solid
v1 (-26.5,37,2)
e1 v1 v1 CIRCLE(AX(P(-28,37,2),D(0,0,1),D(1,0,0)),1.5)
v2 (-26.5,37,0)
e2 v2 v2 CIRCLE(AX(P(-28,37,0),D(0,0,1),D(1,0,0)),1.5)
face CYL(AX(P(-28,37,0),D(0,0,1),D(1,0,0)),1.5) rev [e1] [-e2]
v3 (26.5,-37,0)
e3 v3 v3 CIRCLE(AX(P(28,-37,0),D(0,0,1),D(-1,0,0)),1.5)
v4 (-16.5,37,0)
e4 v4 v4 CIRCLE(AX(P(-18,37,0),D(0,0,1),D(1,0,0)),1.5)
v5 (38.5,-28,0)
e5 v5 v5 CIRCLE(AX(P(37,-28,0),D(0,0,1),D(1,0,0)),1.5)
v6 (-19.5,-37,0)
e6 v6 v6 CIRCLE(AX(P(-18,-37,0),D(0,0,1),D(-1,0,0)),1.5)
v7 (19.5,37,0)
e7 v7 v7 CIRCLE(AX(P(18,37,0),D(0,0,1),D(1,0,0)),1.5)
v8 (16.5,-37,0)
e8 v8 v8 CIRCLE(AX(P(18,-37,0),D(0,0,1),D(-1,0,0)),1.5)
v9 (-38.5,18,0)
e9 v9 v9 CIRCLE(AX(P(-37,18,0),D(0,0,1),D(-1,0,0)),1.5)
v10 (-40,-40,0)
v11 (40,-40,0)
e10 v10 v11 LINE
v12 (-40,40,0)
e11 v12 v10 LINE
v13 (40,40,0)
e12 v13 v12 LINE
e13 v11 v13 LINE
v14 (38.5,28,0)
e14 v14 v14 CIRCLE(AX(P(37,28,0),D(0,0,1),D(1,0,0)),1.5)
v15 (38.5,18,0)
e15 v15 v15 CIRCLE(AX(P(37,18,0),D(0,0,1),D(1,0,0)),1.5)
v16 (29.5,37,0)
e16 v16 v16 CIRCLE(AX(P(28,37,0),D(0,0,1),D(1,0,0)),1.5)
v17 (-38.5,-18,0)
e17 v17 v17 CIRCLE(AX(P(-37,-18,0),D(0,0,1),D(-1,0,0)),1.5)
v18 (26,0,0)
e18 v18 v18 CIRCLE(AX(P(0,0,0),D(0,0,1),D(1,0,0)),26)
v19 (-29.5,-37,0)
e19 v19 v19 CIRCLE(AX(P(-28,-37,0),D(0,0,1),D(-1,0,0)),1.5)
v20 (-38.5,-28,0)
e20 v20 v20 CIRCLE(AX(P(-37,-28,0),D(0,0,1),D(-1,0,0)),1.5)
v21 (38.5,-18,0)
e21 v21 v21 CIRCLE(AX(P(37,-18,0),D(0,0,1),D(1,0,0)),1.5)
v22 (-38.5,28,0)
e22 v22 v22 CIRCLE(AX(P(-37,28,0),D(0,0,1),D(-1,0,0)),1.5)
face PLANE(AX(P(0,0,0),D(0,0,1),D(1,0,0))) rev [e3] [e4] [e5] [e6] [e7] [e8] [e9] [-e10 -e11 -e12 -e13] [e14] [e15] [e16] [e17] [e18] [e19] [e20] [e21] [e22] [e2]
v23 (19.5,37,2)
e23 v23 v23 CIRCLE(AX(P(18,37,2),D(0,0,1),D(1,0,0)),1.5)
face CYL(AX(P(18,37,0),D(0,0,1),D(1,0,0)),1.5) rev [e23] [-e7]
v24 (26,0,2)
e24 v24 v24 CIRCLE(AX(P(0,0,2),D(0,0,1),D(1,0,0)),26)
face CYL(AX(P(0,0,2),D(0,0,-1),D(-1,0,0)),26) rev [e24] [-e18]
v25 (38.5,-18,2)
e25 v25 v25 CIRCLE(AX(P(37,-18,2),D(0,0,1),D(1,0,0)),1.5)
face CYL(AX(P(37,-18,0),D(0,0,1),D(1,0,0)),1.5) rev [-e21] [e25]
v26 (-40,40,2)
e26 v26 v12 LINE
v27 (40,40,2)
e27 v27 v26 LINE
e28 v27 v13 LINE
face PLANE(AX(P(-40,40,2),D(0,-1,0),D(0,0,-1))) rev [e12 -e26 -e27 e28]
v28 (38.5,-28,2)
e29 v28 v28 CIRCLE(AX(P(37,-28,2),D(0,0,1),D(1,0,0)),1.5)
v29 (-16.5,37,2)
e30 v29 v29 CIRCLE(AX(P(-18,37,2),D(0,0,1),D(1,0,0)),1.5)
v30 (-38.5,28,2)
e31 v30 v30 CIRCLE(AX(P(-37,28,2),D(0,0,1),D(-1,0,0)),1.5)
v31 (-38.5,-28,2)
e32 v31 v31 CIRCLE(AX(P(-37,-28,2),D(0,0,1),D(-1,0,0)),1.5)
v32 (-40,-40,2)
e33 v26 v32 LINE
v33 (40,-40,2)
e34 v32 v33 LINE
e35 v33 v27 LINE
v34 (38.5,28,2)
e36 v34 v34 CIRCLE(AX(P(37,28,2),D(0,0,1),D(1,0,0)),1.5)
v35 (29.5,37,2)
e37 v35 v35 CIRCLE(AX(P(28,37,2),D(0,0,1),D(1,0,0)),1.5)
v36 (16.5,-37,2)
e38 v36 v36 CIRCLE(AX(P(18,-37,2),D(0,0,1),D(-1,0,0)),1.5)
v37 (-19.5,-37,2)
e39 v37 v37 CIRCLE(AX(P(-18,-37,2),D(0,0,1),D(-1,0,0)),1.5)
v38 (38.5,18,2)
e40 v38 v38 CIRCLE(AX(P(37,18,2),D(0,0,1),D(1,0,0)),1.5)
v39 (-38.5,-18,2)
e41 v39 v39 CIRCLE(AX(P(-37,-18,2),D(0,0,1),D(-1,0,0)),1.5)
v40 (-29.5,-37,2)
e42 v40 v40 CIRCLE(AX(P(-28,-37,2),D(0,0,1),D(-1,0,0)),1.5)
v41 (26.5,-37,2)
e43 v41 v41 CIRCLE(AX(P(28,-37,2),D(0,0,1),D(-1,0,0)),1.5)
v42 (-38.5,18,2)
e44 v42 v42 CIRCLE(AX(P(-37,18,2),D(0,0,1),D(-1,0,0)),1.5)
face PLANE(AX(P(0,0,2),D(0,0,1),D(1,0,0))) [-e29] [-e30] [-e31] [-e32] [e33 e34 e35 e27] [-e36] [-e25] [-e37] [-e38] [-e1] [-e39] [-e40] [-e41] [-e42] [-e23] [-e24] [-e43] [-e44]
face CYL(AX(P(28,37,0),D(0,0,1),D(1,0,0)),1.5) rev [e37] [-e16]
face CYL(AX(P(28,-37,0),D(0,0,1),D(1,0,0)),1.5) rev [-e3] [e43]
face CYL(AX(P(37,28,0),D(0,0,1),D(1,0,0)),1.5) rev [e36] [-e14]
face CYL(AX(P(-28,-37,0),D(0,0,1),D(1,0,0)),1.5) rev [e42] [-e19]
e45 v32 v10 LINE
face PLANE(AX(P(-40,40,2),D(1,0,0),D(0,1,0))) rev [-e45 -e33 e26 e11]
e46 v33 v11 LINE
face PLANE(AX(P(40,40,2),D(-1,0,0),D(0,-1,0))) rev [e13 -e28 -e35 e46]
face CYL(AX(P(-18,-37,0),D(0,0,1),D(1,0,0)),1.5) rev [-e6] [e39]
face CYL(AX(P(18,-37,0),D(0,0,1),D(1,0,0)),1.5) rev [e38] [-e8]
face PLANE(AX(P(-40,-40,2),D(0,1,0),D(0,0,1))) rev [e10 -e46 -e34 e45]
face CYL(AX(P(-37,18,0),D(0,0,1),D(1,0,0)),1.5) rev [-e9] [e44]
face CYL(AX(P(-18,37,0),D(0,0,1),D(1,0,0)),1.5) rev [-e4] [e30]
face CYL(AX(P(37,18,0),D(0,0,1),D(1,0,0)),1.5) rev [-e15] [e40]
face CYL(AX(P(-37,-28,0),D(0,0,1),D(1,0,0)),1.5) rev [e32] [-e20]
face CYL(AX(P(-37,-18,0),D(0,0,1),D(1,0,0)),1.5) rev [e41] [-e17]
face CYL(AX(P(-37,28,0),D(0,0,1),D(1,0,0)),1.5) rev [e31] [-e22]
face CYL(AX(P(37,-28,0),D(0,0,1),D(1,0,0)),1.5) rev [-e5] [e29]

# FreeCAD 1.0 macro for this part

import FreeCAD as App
import Part
import Sketcher
from FreeCAD import Vector

doc = App.newDocument("Part")
params = doc.addObject("Spreadsheet::Sheet", "Params")
for row, (alias, value) in enumerate([
    ("sketch1_diameter", "52 mm"),
    ("sketch1_width", "80 mm"),
    ("pad1_length", "2 mm"),
    ("sketch2_diameter", "3 mm"),
], start=1):
    params.set(f"A{row}", alias)
    params.set(f"B{row}", "=" + value)
    params.setAlias(f"B{row}", alias)

body = doc.addObject("PartDesign::Body", "Body")

# Sketch on XY plane
sketch1 = body.newObject("Sketcher::SketchObject", "Sketch")
sketch1.AttachmentSupport = (doc.getObject("XY_Plane"), [""])
sketch1.MapMode = "FlatFace"
sketch1.addGeometry([
    Part.LineSegment(Vector(-40, 40, 0), Vector(-40, -40, 0)),  # 0
    Part.LineSegment(Vector(-40, -40, 0), Vector(40, -40, 0)),  # 1
    Part.LineSegment(Vector(40, -40, 0), Vector(40, 40, 0)),  # 2
    Part.LineSegment(Vector(40, 40, 0), Vector(-40, 40, 0)),  # 3
    Part.Circle(Vector(0, 0, 0), Vector(0, 0, 1), 26),  # 4
], False)
sketch1.addConstraint([
    Sketcher.Constraint("Coincident", 0, 2, 1, 1),
    Sketcher.Constraint("Coincident", 1, 2, 2, 1),
    Sketcher.Constraint("Coincident", 2, 2, 3, 1),
    Sketcher.Constraint("Coincident", 3, 2, 0, 1),
    Sketcher.Constraint("Vertical", 0),
    Sketcher.Constraint("Horizontal", 1),
    Sketcher.Constraint("Vertical", 2),
    Sketcher.Constraint("Horizontal", 3),
    Sketcher.Constraint("Coincident", 4, 3, -1, 1),
    Sketcher.Constraint("Symmetric", 0, 2, 2, 2, -1, 1),
    Sketcher.Constraint("Equal", 3, 0),
    Sketcher.Constraint("Diameter", 4, 52.0),
    Sketcher.Constraint("DistanceX", 1, 1, 1, 2, 80.0),
])
sketch1.setExpression("Constraints[11]", "Params.sketch1_diameter")
sketch1.setExpression("Constraints[12]", "Params.sketch1_width")
pad1 = body.newObject("PartDesign::Pad", "Pad")
pad1.Profile = sketch1
pad1.setExpression("Length", "Params.pad1_length")

# Sketch on XY plane
sketch2 = body.newObject("Sketcher::SketchObject", "Sketch001")
sketch2.AttachmentSupport = (doc.getObject("XY_Plane"), [""])
sketch2.MapMode = "FlatFace"
sketch2.AttachmentOffset = App.Placement(Vector(0, 0, 2), App.Rotation())
sketch2.addGeometry([
    Part.Circle(Vector(37, 28, 0), Vector(0, 0, 1), 1.5),  # 0
    Part.Circle(Vector(37, 18, 0), Vector(0, 0, 1), 1.5),  # 1
    Part.Circle(Vector(37, -18, 0), Vector(0, 0, 1), 1.5),  # 2
    Part.Circle(Vector(37, -28, 0), Vector(0, 0, 1), 1.5),  # 3
    Part.Circle(Vector(-37, -28, 0), Vector(0, 0, 1), 1.5),  # 4
    Part.Circle(Vector(-37, -18, 0), Vector(0, 0, 1), 1.5),  # 5
    Part.Circle(Vector(-37, 18, 0), Vector(0, 0, 1), 1.5),  # 6
    Part.Circle(Vector(-37, 28, 0), Vector(0, 0, 1), 1.5),  # 7
    Part.Circle(Vector(-28, 37, 0), Vector(0, 0, 1), 1.5),  # 8
    Part.Circle(Vector(-18, 37, 0), Vector(0, 0, 1), 1.5),  # 9
    Part.Circle(Vector(18, 37, 0), Vector(0, 0, 1), 1.5),  # 10
    Part.Circle(Vector(28, 37, 0), Vector(0, 0, 1), 1.5),  # 11
    Part.Circle(Vector(28, -37, 0), Vector(0, 0, 1), 1.5),  # 12
    Part.Circle(Vector(18, -37, 0), Vector(0, 0, 1), 1.5),  # 13
    Part.Circle(Vector(-18, -37, 0), Vector(0, 0, 1), 1.5),  # 14
    Part.Circle(Vector(-28, -37, 0), Vector(0, 0, 1), 1.5),  # 15
], False)
sketch2.addConstraint([
    Sketcher.Constraint("Equal", 0, 1),
    Sketcher.Constraint("Equal", 1, 2),
    Sketcher.Constraint("Equal", 2, 3),
    Sketcher.Constraint("Equal", 3, 4),
    Sketcher.Constraint("Equal", 4, 5),
    Sketcher.Constraint("Equal", 5, 6),
    Sketcher.Constraint("Equal", 6, 7),
    Sketcher.Constraint("Equal", 7, 8),
    Sketcher.Constraint("Equal", 8, 9),
    Sketcher.Constraint("Equal", 9, 10),
    Sketcher.Constraint("Equal", 10, 11),
    Sketcher.Constraint("Equal", 11, 12),
    Sketcher.Constraint("Equal", 12, 13),
    Sketcher.Constraint("Equal", 13, 14),
    Sketcher.Constraint("Equal", 14, 15),
    Sketcher.Constraint("Symmetric", 0, 3, 4, 3, -1, 1),
    Sketcher.Constraint("Symmetric", 1, 3, 5, 3, -1, 1),
    Sketcher.Constraint("Symmetric", 2, 3, 6, 3, -1, 1),
    Sketcher.Constraint("Symmetric", 3, 3, 7, 3, -1, 1),
    Sketcher.Constraint("Symmetric", 8, 3, 12, 3, -1, 1),
    Sketcher.Constraint("Symmetric", 9, 3, 13, 3, -1, 1),
    Sketcher.Constraint("Symmetric", 10, 3, 14, 3, -1, 1),
    Sketcher.Constraint("Symmetric", 11, 3, 15, 3, -1, 1),
    Sketcher.Constraint("Symmetric", 3, 3, 4, 3, -2),
    Sketcher.Constraint("Symmetric", 2, 3, 5, 3, -2),
    Sketcher.Constraint("Symmetric", 9, 3, 10, 3, -2),
    Sketcher.Constraint("Symmetric", 8, 3, 11, 3, -2),
    Sketcher.Constraint("Horizontal", 8, 3, 9, 3),
    Sketcher.Constraint("Vertical", 0, 3, 1, 3),
    Sketcher.Constraint("Diameter", 0, 3.0),
    Sketcher.Constraint("DistanceX", -1, 1, 0, 3, 37.0),
    Sketcher.Constraint("DistanceY", -1, 1, 0, 3, 28.0),
    Sketcher.Constraint("DistanceY", -1, 1, 1, 3, 18.0),
    Sketcher.Constraint("DistanceX", 8, 3, -1, 1, 28.0),
    Sketcher.Constraint("DistanceY", -1, 1, 8, 3, 37.0),
    Sketcher.Constraint("DistanceX", 9, 3, -1, 1, 18.0),
])
sketch2.setExpression("Constraints[29]", "Params.sketch2_diameter")
pocket1 = body.newObject("PartDesign::Pocket", "Pocket")
pocket1.Profile = sketch2
pocket1.Type = "ThroughAll"

doc.recompute()
